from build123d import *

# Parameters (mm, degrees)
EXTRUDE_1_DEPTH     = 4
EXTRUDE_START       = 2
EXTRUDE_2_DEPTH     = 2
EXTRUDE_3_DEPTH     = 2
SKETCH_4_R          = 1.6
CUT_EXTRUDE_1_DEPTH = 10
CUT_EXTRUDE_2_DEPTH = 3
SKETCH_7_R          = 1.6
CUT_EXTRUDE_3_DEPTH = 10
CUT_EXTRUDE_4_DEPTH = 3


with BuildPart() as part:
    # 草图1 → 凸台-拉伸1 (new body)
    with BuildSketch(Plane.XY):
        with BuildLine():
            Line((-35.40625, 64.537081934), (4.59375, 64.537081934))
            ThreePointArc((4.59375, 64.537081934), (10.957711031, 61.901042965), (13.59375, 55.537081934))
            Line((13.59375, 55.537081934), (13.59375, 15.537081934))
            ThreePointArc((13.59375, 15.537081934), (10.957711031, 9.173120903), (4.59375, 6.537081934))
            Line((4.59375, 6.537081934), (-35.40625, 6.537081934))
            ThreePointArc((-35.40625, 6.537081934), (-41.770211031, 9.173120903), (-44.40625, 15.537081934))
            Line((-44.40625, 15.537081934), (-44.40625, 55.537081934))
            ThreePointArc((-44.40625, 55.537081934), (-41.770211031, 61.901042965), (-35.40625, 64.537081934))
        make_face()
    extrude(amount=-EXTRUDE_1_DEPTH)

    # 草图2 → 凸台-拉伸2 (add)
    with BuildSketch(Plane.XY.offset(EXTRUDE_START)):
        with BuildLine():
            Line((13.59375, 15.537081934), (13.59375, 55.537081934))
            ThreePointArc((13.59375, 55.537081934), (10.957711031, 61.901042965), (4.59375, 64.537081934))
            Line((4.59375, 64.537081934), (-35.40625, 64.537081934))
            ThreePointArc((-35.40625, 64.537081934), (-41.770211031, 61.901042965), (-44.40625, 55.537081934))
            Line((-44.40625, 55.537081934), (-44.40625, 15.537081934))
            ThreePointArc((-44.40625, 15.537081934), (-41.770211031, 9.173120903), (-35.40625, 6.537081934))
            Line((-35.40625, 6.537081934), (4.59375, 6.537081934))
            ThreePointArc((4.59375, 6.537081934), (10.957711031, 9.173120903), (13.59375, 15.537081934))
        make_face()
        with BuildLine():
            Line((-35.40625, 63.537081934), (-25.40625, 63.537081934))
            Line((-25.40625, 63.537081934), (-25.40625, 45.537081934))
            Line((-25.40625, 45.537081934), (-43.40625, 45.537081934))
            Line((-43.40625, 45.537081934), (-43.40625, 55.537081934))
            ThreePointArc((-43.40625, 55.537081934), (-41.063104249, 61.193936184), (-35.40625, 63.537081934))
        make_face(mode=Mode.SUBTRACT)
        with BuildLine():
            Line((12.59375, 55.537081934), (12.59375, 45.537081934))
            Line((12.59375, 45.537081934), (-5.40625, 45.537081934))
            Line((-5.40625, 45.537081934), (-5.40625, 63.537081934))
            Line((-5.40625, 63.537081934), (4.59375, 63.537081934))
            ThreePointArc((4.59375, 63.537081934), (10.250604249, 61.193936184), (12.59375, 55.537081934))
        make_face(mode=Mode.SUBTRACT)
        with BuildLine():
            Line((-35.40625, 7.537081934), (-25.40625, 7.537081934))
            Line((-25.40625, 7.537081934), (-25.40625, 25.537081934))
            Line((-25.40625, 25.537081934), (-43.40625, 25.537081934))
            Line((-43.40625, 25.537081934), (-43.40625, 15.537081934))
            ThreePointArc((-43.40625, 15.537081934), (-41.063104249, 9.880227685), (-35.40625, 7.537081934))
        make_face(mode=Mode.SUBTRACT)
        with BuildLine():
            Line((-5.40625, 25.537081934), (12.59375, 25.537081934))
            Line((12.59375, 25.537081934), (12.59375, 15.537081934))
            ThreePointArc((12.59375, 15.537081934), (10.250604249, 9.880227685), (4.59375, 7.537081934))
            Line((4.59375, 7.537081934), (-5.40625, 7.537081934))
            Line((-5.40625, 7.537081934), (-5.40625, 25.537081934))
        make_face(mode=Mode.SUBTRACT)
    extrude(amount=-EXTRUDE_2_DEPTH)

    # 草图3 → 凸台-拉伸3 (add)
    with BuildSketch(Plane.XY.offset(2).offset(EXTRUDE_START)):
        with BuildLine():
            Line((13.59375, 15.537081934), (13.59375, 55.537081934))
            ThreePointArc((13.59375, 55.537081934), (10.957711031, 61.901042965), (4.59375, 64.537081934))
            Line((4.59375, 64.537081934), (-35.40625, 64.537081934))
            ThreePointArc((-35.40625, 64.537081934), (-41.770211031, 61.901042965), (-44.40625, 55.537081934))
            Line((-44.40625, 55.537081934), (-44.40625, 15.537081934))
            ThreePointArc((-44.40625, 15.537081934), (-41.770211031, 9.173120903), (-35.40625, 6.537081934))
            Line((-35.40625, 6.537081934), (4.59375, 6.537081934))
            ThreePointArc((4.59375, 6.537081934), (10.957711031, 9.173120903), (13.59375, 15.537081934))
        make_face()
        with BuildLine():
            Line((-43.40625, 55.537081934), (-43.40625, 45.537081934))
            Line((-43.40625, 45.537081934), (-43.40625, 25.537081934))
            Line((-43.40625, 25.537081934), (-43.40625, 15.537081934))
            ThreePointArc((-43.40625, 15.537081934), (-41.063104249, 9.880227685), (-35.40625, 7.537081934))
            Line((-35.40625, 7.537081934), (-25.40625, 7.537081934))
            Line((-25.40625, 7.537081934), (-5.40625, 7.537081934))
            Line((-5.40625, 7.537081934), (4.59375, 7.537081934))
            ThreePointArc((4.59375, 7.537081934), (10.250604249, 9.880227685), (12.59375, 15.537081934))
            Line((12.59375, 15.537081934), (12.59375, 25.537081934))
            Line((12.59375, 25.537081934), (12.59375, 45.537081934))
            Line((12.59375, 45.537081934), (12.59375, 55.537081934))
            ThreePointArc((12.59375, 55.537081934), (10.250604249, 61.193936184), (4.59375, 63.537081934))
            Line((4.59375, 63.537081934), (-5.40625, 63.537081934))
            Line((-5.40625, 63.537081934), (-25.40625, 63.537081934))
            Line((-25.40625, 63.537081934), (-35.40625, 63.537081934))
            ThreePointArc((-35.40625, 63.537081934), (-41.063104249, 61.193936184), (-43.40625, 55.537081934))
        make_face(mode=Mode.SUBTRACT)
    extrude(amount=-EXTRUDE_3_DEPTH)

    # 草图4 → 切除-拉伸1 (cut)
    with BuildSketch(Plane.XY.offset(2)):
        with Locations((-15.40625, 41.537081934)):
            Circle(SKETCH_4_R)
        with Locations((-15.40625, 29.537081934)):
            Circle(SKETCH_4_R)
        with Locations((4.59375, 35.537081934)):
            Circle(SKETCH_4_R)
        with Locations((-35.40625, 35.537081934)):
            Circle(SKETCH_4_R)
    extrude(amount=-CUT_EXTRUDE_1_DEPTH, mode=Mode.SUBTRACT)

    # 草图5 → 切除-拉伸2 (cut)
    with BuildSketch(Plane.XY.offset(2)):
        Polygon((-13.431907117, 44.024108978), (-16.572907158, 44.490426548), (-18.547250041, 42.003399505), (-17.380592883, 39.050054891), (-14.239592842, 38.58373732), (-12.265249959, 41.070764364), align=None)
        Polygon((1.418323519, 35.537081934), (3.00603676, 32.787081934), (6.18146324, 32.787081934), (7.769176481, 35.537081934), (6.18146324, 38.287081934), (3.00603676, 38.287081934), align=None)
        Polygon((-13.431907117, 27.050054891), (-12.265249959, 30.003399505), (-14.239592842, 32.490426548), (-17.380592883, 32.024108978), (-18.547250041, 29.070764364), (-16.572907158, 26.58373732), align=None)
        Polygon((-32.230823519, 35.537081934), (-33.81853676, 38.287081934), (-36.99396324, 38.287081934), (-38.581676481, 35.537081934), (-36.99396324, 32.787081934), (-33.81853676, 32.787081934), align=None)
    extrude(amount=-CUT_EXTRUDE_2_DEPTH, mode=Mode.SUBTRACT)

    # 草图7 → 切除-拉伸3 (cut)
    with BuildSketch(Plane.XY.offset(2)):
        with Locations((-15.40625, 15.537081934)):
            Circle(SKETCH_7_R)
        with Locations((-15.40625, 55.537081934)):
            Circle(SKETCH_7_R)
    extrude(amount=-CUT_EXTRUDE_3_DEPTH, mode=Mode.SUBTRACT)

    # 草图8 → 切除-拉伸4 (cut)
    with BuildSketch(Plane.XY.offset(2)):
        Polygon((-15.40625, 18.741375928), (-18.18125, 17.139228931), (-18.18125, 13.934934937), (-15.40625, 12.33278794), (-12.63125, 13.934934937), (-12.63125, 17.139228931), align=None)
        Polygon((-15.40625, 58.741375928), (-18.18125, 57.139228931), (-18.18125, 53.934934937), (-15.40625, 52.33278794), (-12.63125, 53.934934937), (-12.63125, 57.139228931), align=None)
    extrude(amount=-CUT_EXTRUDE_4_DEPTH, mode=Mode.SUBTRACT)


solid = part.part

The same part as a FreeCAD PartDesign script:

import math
import FreeCAD as App
import Part
import Sketcher
from FreeCAD import Vector
Q = App.Units.Quantity


def add_polygon(sketch, points):
    """Adds a closed chain of lines whose ends are joined by coincident constraints."""
    first, n = sketch.GeometryCount, len(points)
    for a, b in zip(points, points[1:] + points[:1]):
        sketch.addGeometry(Part.LineSegment(App.Vector(*a, 0), App.Vector(*b, 0)), False)
    for i in range(n):
        sketch.addConstraint(Sketcher.Constraint("Coincident", first + i, 2, first + (i + 1) % n, 1))

doc = App.newDocument("Part")
params = doc.addObject("Spreadsheet::Sheet", "Params")
for row, (alias, value) in enumerate([
    ("sketch1_radius", "9 mm"),
    ("sketch1_width", "40 mm"),
    ("pad1_length", "4 mm"),
    ("sketch2_radius", "9 mm"),
    ("sketch2_radius2", "8 mm"),
    ("sketch2_width", "40 mm"),
    ("sketch2_width2", "10 mm"),
    ("pad2_length", "2 mm"),
    ("sketch3_radius", "9 mm"),
    ("sketch3_radius2", "8 mm"),
    ("sketch3_width", "40 mm"),
    ("pad3_length", "2 mm"),
    ("sketch4_diameter", "3.2 mm"),
    ("pocket1_length", "10 mm"),
    ("pocket2_length", "3 mm"),
    ("sketch6_diameter", "3.2 mm"),
    ("pocket3_length", "10 mm"),
    ("pocket4_length", "3 mm"),
], start=1):
    params.set(f"A{row}", alias)
    params.set(f"B{row}", "=" + value)
    params.setAlias(f"B{row}", alias)

body = doc.addObject("PartDesign::Body", "Body")

# Sketch on XY plane
sketch1 = body.newObject("Sketcher::SketchObject", "Sketch")
sketch1.AttachmentSupport = (doc.getObject("XY_Plane"), [""])
sketch1.MapMode = "FlatFace"
sketch1.addGeometry([
    Part.LineSegment(Vector(5, 65, 0), Vector(-35, 65, 0)),  # 0
    Part.ArcOfCircle(Part.Circle(Vector(-35, 56, 0), Vector(0, 0, 1), 9), math.radians(90), math.radians(180)),  # 1
    Part.LineSegment(Vector(-44, 56, 0), Vector(-44, 16, 0)),  # 2
    Part.ArcOfCircle(Part.Circle(Vector(-35, 16, 0), Vector(0, 0, 1), 9), math.radians(180), math.radians(270)),  # 3
    Part.LineSegment(Vector(-35, 7, 0), Vector(5, 7, 0)),  # 4
    Part.ArcOfCircle(Part.Circle(Vector(5, 16, 0), Vector(0, 0, 1), 9), math.radians(-90), math.radians(0)),  # 5
    Part.LineSegment(Vector(14, 16, 0), Vector(14, 56, 0)),  # 6
    Part.ArcOfCircle(Part.Circle(Vector(5, 56, 0), Vector(0, 0, 1), 9), math.radians(0), math.radians(90)),  # 7
], False)
sketch1.addConstraint([
    Sketcher.Constraint("Tangent", 0, 2, 1, 1),
    Sketcher.Constraint("Tangent", 1, 2, 2, 1),
    Sketcher.Constraint("Tangent", 2, 2, 3, 1),
    Sketcher.Constraint("Tangent", 3, 2, 4, 1),
    Sketcher.Constraint("Tangent", 4, 2, 5, 1),
    Sketcher.Constraint("Tangent", 5, 2, 6, 1),
    Sketcher.Constraint("Tangent", 6, 2, 7, 1),
    Sketcher.Constraint("Tangent", 7, 2, 0, 1),
    Sketcher.Constraint("Horizontal", 0),
    Sketcher.Constraint("Vertical", 2),
    Sketcher.Constraint("Horizontal", 4),
    Sketcher.Constraint("Vertical", 6),
    Sketcher.Constraint("Equal", 1, 3),
    Sketcher.Constraint("Equal", 3, 5),
    Sketcher.Constraint("Equal", 5, 7),
    Sketcher.Constraint("Equal", 4, 2),
    Sketcher.Constraint("Radius", 1, 9.0),
    Sketcher.Constraint("DistanceX", 0, 2, 0, 1, 40.0),
    Sketcher.Constraint("DistanceX", 1, 3, -1, 1, 35.40625),
    Sketcher.Constraint("DistanceY", -1, 1, 1, 3, 55.537082),
])
sketch1.setExpression("Constraints[16]", "Params.sketch1_radius")
sketch1.setExpression("Constraints[17]", "Params.sketch1_width")
pad1 = body.newObject("PartDesign::Pad", "Pad")
pad1.Profile = sketch1
pad1.setExpression("Length", "Params.pad1_length")
pad1.Reversed = True

# Sketch on XY plane
sketch2 = body.newObject("Sketcher::SketchObject", "Sketch001")
sketch2.AttachmentSupport = (doc.getObject("XY_Plane"), [""])
sketch2.MapMode = "FlatFace"
sketch2.AttachmentOffset = App.Placement(Vector(0, 0, 2), App.Rotation())
sketch2.addGeometry([
    Part.LineSegment(Vector(14, 16, 0), Vector(14, 56, 0)),  # 0
    Part.ArcOfCircle(Part.Circle(Vector(5, 56, 0), Vector(0, 0, 1), 9), math.radians(0), math.radians(90)),  # 1
    Part.LineSegment(Vector(5, 65, 0), Vector(-35, 65, 0)),  # 2
    Part.ArcOfCircle(Part.Circle(Vector(-35, 56, 0), Vector(0, 0, 1), 9), math.radians(90), math.radians(180)),  # 3
    Part.LineSegment(Vector(-44, 56, 0), Vector(-44, 16, 0)),  # 4
    Part.ArcOfCircle(Part.Circle(Vector(-35, 16, 0), Vector(0, 0, 1), 9), math.radians(180), math.radians(270)),  # 5
    Part.LineSegment(Vector(-35, 7, 0), Vector(5, 7, 0)),  # 6
    Part.ArcOfCircle(Part.Circle(Vector(5, 16, 0), Vector(0, 0, 1), 9), math.radians(-90), math.radians(0)),  # 7
    Part.LineSegment(Vector(-25, 8, 0), Vector(-35, 8, 0)),  # 8
    Part.ArcOfCircle(Part.Circle(Vector(-35, 16, 0), Vector(0, 0, 1), 8), math.radians(-180), math.radians(-90)),  # 9
    Part.LineSegment(Vector(-43, 16, 0), Vector(-43, 26, 0)),  # 10
    Part.LineSegment(Vector(-43, 26, 0), Vector(-25, 26, 0)),  # 11
    Part.LineSegment(Vector(-25, 26, 0), Vector(-25, 8, 0)),  # 12
    Part.LineSegment(Vector(-5, 8, 0), Vector(-5, 26, 0)),  # 13
    Part.LineSegment(Vector(-5, 26, 0), Vector(13, 26, 0)),  # 14
    Part.LineSegment(Vector(13, 26, 0), Vector(13, 16, 0)),  # 15
    Part.ArcOfCircle(Part.Circle(Vector(5, 16, 0), Vector(0, 0, 1), 8), math.radians(-90), math.radians(0)),  # 16
    Part.LineSegment(Vector(5, 8, 0), Vector(-5, 8, 0)),  # 17
    Part.ArcOfCircle(Part.Circle(Vector(-35, 56, 0), Vector(0, 0, 1), 8), math.radians(90), math.radians(180)),  # 18
    Part.LineSegment(Vector(-35, 64, 0), Vector(-25, 64, 0)),  # 19
    Part.LineSegment(Vector(-25, 64, 0), Vector(-25, 46, 0)),  # 20
    Part.LineSegment(Vector(-25, 46, 0), Vector(-43, 46, 0)),  # 21
    Part.LineSegment(Vector(-43, 46, 0), Vector(-43, 56, 0)),  # 22
    Part.ArcOfCircle(Part.Circle(Vector(5, 56, 0), Vector(0, 0, 1), 8), math.radians(0), math.radians(90)),  # 23
    Part.LineSegment(Vector(13, 56, 0), Vector(13, 46, 0)),  # 24
    Part.LineSegment(Vector(13, 46, 0), Vector(-5, 46, 0)),  # 25
    Part.LineSegment(Vector(-5, 46, 0), Vector(-5, 64, 0)),  # 26
    Part.LineSegment(Vector(-5, 64, 0), Vector(5, 64, 0)),  # 27
], False)
sketch2.addConstraint([
    Sketcher.Constraint("Tangent", 0, 2, 1, 1),
    Sketcher.Constraint("Tangent", 1, 2, 2, 1),
    Sketcher.Constraint("Tangent", 2, 2, 3, 1),
    Sketcher.Constraint("Tangent", 3, 2, 4, 1),
    Sketcher.Constraint("Tangent", 4, 2, 5, 1),
    Sketcher.Constraint("Tangent", 5, 2, 6, 1),
    Sketcher.Constraint("Tangent", 6, 2, 7, 1),
    Sketcher.Constraint("Tangent", 7, 2, 0, 1),
    Sketcher.Constraint("Tangent", 8, 2, 9, 2),
    Sketcher.Constraint("Tangent", 9, 1, 10, 1),
    Sketcher.Constraint("Coincident", 10, 2, 11, 1),
    Sketcher.Constraint("Coincident", 11, 2, 12, 1),
    Sketcher.Constraint("Coincident", 12, 2, 8, 1),
    Sketcher.Constraint("Coincident", 13, 2, 14, 1),
    Sketcher.Constraint("Coincident", 14, 2, 15, 1),
    Sketcher.Constraint("Tangent", 15, 2, 16, 2),
    Sketcher.Constraint("Tangent", 16, 1, 17, 1),
    Sketcher.Constraint("Coincident", 17, 2, 13, 1),
    Sketcher.Constraint("Tangent", 18, 1, 19, 1),
    Sketcher.Constraint("Coincident", 19, 2, 20, 1),
    Sketcher.Constraint("Coincident", 20, 2, 21, 1),
    Sketcher.Constraint("Coincident", 21, 2, 22, 1),
    Sketcher.Constraint("Tangent", 22, 2, 18, 2),
    Sketcher.Constraint("Tangent", 23, 1, 24, 1),
    Sketcher.Constraint("Coincident", 24, 2, 25, 1),
    Sketcher.Constraint("Coincident", 25, 2, 26, 1),
    Sketcher.Constraint("Coincident", 26, 2, 27, 1),
    Sketcher.Constraint("Tangent", 27, 2, 23, 2),
    Sketcher.Constraint("Vertical", 0),
    Sketcher.Constraint("Horizontal", 2),
    Sketcher.Constraint("Vertical", 4),
    Sketcher.Constraint("Horizontal", 6),
    Sketcher.Constraint("Horizontal", 8),
    Sketcher.Constraint("Vertical", 10),
    Sketcher.Constraint("Horizontal", 11),
    Sketcher.Constraint("Vertical", 12),
    Sketcher.Constraint("Vertical", 13),
    Sketcher.Constraint("Horizontal", 14),
    Sketcher.Constraint("Vertical", 15),
    Sketcher.Constraint("Horizontal", 17),
    Sketcher.Constraint("Horizontal", 19),
    Sketcher.Constraint("Vertical", 20),
    Sketcher.Constraint("Horizontal", 21),
    Sketcher.Constraint("Vertical", 22),
    Sketcher.Constraint("Vertical", 24),
    Sketcher.Constraint("Horizontal", 25),
    Sketcher.Constraint("Vertical", 26),
    Sketcher.Constraint("Horizontal", 27),
    Sketcher.Constraint("Coincident", 9, 3, 5, 3),
    Sketcher.Constraint("Coincident", 16, 3, 7, 3),
    Sketcher.Constraint("Coincident", 18, 3, 3, 3),
    Sketcher.Constraint("Coincident", 23, 3, 1, 3),
    Sketcher.Constraint("Equal", 1, 3),
    Sketcher.Constraint("Equal", 3, 5),
    Sketcher.Constraint("Equal", 5, 7),
    Sketcher.Constraint("Equal", 9, 16),
    Sketcher.Constraint("Equal", 16, 18),
    Sketcher.Constraint("Equal", 18, 23),
    Sketcher.Constraint("Horizontal", 11, 2, 13, 2),
    Sketcher.Constraint("Horizontal", 21, 2, 24, 2),
    Sketcher.Constraint("Vertical", 12, 2, 19, 2),
    Sketcher.Constraint("Vertical", 17, 2, 25, 2),
    Sketcher.Constraint("Equal", 11, 14),
    Sketcher.Constraint("Equal", 6, 0),
    Sketcher.Constraint("Equal", 27, 10),
    Sketcher.Constraint("Equal", 13, 20),
    Sketcher.Constraint("Radius", 1, 9.0),
    Sketcher.Constraint("Radius", 9, 8.0),
    Sketcher.Constraint("DistanceX", 2, 2, 2, 1, 40.0),
    Sketcher.Constraint("DistanceX", 8, 2, 8, 1, 10.0),
    Sketcher.Constraint("DistanceX", -1, 1, 1, 3, 4.59375),
    Sketcher.Constraint("DistanceY", -1, 1, 1, 3, 55.537082),
])
sketch2.setExpression("Constraints[66]", "Params.sketch2_radius")
sketch2.setExpression("Constraints[67]", "Params.sketch2_radius2")
sketch2.setExpression("Constraints[68]", "Params.sketch2_width")
sketch2.setExpression("Constraints[69]", "Params.sketch2_width2")
pad2 = body.newObject("PartDesign::Pad", "Pad001")
pad2.Profile = sketch2
pad2.setExpression("Length", "Params.pad2_length")
pad2.Reversed = True

# Sketch on XY plane
sketch3 = body.newObject("Sketcher::SketchObject", "Sketch002")
sketch3.AttachmentSupport = (doc.getObject("XY_Plane"), [""])
sketch3.MapMode = "FlatFace"
sketch3.AttachmentOffset = App.Placement(Vector(0, 0, 4), App.Rotation())
sketch3.addGeometry([
    Part.LineSegment(Vector(14, 16, 0), Vector(14, 56, 0)),  # 0
    Part.ArcOfCircle(Part.Circle(Vector(5, 56, 0), Vector(0, 0, 1), 9), math.radians(0), math.radians(90)),  # 1
    Part.LineSegment(Vector(5, 65, 0), Vector(-35, 65, 0)),  # 2
    Part.ArcOfCircle(Part.Circle(Vector(-35, 56, 0), Vector(0, 0, 1), 9), math.radians(90), math.radians(180)),  # 3
    Part.LineSegment(Vector(-44, 56, 0), Vector(-44, 16, 0)),  # 4
    Part.ArcOfCircle(Part.Circle(Vector(-35, 16, 0), Vector(0, 0, 1), 9), math.radians(180), math.radians(270)),  # 5
    Part.LineSegment(Vector(-35, 7, 0), Vector(5, 7, 0)),  # 6
    Part.ArcOfCircle(Part.Circle(Vector(5, 16, 0), Vector(0, 0, 1), 9), math.radians(-90), math.radians(0)),  # 7
    Part.LineSegment(Vector(-43, 16, 0), Vector(-43, 56, 0)),  # 8
    Part.ArcOfCircle(Part.Circle(Vector(-35, 56, 0), Vector(0, 0, 1), 8), math.radians(90), math.radians(180)),  # 9
    Part.LineSegment(Vector(-35, 64, 0), Vector(5, 64, 0)),  # 10
    Part.ArcOfCircle(Part.Circle(Vector(5, 56, 0), Vector(0, 0, 1), 8), math.radians(0), math.radians(90)),  # 11
    Part.LineSegment(Vector(13, 56, 0), Vector(13, 16, 0)),  # 12
    Part.ArcOfCircle(Part.Circle(Vector(5, 16, 0), Vector(0, 0, 1), 8), math.radians(-90), math.radians(0)),  # 13
    Part.LineSegment(Vector(5, 8, 0), Vector(-35, 8, 0)),  # 14
    Part.ArcOfCircle(Part.Circle(Vector(-35, 16, 0), Vector(0, 0, 1), 8), math.radians(-180), math.radians(-90)),  # 15
], False)
sketch3.addConstraint([
    Sketcher.Constraint("Tangent", 0, 2, 1, 1),
    Sketcher.Constraint("Tangent", 1, 2, 2, 1),
    Sketcher.Constraint("Tangent", 2, 2, 3, 1),
    Sketcher.Constraint("Tangent", 3, 2, 4, 1),
    Sketcher.Constraint("Tangent", 4, 2, 5, 1),
    Sketcher.Constraint("Tangent", 5, 2, 6, 1),
    Sketcher.Constraint("Tangent", 6, 2, 7, 1),
    Sketcher.Constraint("Tangent", 7, 2, 0, 1),
    Sketcher.Constraint("Tangent", 8, 2, 9, 2),
    Sketcher.Constraint("Tangent", 9, 1, 10, 1),
    Sketcher.Constraint("Tangent", 10, 2, 11, 2),
    Sketcher.Constraint("Tangent", 11, 1, 12, 1),
    Sketcher.Constraint("Tangent", 12, 2, 13, 2),
    Sketcher.Constraint("Tangent", 13, 1, 14, 1),
    Sketcher.Constraint("Tangent", 14, 2, 15, 2),
    Sketcher.Constraint("Tangent", 15, 1, 8, 1),
    Sketcher.Constraint("Vertical", 0),
    Sketcher.Constraint("Horizontal", 2),
    Sketcher.Constraint("Vertical", 4),
    Sketcher.Constraint("Horizontal", 6),
    Sketcher.Constraint("Vertical", 8),
    Sketcher.Constraint("Horizontal", 10),
    Sketcher.Constraint("Vertical", 12),
    Sketcher.Constraint("Horizontal", 14),
    Sketcher.Constraint("Coincident", 9, 3, 3, 3),
    Sketcher.Constraint("Coincident", 11, 3, 1, 3),
    Sketcher.Constraint("Coincident", 13, 3, 7, 3),
    Sketcher.Constraint("Equal", 1, 3),
    Sketcher.Constraint("Equal", 3, 5),
    Sketcher.Constraint("Equal", 5, 7),
    Sketcher.Constraint("Equal", 13, 15),
    Sketcher.Constraint("Equal", 14, 0),
    Sketcher.Constraint("Radius", 1, 9.0),
    Sketcher.Constraint("Radius", 9, 8.0),
    Sketcher.Constraint("DistanceX", 2, 2, 2, 1, 40.0),
    Sketcher.Constraint("DistanceX", -1, 1, 1, 3, 4.59375),
    Sketcher.Constraint("DistanceY", -1, 1, 1, 3, 55.537082),
])
sketch3.setExpression("Constraints[32]", "Params.sketch3_radius")
sketch3.setExpression("Constraints[33]", "Params.sketch3_radius2")
sketch3.setExpression("Constraints[34]", "Params.sketch3_width")
pad3 = body.newObject("PartDesign::Pad", "Pad002")
pad3.Profile = sketch3
pad3.setExpression("Length", "Params.pad3_length")
pad3.Reversed = True

# Sketch on XY plane
sketch4 = body.newObject("Sketcher::SketchObject", "Sketch003")
sketch4.AttachmentSupport = (doc.getObject("XY_Plane"), [""])
sketch4.MapMode = "FlatFace"
sketch4.AttachmentOffset = App.Placement(Vector(0, 0, 2), App.Rotation())
sketch4.addGeometry([
    Part.Circle(Vector(-15.4, 41.5, 0), Vector(0, 0, 1), 1.6),
    Part.Circle(Vector(-15.4, 29.5, 0), Vector(0, 0, 1), 1.6),
    Part.Circle(Vector(4.6, 35.5, 0), Vector(0, 0, 1), 1.6),
    Part.Circle(Vector(-35.4, 35.5, 0), Vector(0, 0, 1), 1.6),
], False)
sketch4.addConstraint([
    Sketcher.Constraint("Equal", 0, 1),
    Sketcher.Constraint("Equal", 1, 2),
    Sketcher.Constraint("Equal", 2, 3),
    Sketcher.Constraint("Horizontal", 2, 3, 3, 3),
    Sketcher.Constraint("Vertical", 0, 3, 1, 3),
    Sketcher.Constraint("Diameter", 0, 3.2),
    Sketcher.Constraint("DistanceY", 1, 3, 0, 3, 12.0),
    Sketcher.Constraint("DistanceX", 0, 3, 2, 3, 20.0),
    Sketcher.Constraint("DistanceY", 2, 3, 0, 3, 6.0),
    Sketcher.Constraint("DistanceX", 3, 3, 0, 3, 20.0),
    Sketcher.Constraint("DistanceX", 0, 3, -1, 1, 15.40625),
    Sketcher.Constraint("DistanceY", -1, 1, 0, 3, 41.537082),
])
sketch4.setExpression("Constraints[5]", "Params.sketch4_diameter")
pocket1 = body.newObject("PartDesign::Pocket", "Pocket")
pocket1.Profile = sketch4
pocket1.setExpression("Length", "Params.pocket1_length")

# Sketch on XY plane
sketch5 = body.newObject("Sketcher::SketchObject", "Sketch004")
sketch5.AttachmentSupport = (doc.getObject("XY_Plane"), [""])
sketch5.MapMode = "FlatFace"
sketch5.AttachmentOffset = App.Placement(Vector(0, 0, 2), App.Rotation())
add_polygon(sketch5, [(-13.4, 44), (-16.6, 44.5), (-18.5, 42), (-17.4, 39.1), (-14.2, 38.6), (-12.3, 41.1)])  # lines 0-5
add_polygon(sketch5, [(1.4, 35.5), (3, 32.8), (6.2, 32.8), (7.8, 35.5), (6.2, 38.3), (3, 38.3)])  # lines 6-11
add_polygon(sketch5, [(-13.4, 27.1), (-12.3, 30), (-14.2, 32.5), (-17.4, 32), (-18.5, 29.1), (-16.6, 26.6)])  # lines 12-17
add_polygon(sketch5, [(-32.2, 35.5), (-33.8, 38.3), (-37, 38.3), (-38.6, 35.5), (-37, 32.8), (-33.8, 32.8)])  # lines 18-23
sketch5.addConstraint([
    Sketcher.Constraint("Horizontal", 7),
    Sketcher.Constraint("Horizontal", 10),
    Sketcher.Constraint("Horizontal", 19),
    Sketcher.Constraint("Horizontal", 22),
    Sketcher.Constraint("Parallel", 0, 3),
    Sketcher.Constraint("Parallel", 1, 4),
    Sketcher.Constraint("Parallel", 2, 5),
    Sketcher.Constraint("Parallel", 6, 9),
    Sketcher.Constraint("Parallel", 8, 11),
    Sketcher.Constraint("Parallel", 12, 15),
    Sketcher.Constraint("Parallel", 13, 16),
    Sketcher.Constraint("Parallel", 14, 17),
    Sketcher.Constraint("Parallel", 9, 18),
    Sketcher.Constraint("Parallel", 11, 20),
    Sketcher.Constraint("Parallel", 18, 21),
    Sketcher.Constraint("Parallel", 20, 23),
    Sketcher.Constraint("Horizontal", 8, 2, 11, 2),
    Sketcher.Constraint("Horizontal", 10, 2, 18, 2),
    Sketcher.Constraint("Horizontal", 11, 2, 20, 2),
    Sketcher.Constraint("Horizontal", 7, 2, 21, 2),
    Sketcher.Constraint("Horizontal", 20, 2, 23, 2),
    Sketcher.Constraint("Vertical", 7, 2, 9, 2),
    Sketcher.Constraint("Vertical", 6, 2, 10, 2),
    Sketcher.Constraint("Vertical", 4, 2, 12, 2),
    Sketcher.Constraint("Vertical", 3, 2, 13, 2),
    Sketcher.Constraint("Vertical", 2, 2, 14, 2),
    Sketcher.Constraint("Vertical", 1, 2, 15, 2),
    Sketcher.Constraint("Vertical", 0, 2, 16, 2),
    Sketcher.Constraint("Equal", 10, 19),
    Sketcher.Constraint("Equal", 0, 1),
    Sketcher.Constraint("Equal", 1, 2),
    Sketcher.Constraint("Equal", 2, 3),
    Sketcher.Constraint("Equal", 5, 6),
    Sketcher.Constraint("Equal", 11, 12),
    Sketcher.Constraint("Equal", 12, 13),
    Sketcher.Constraint("Equal", 13, 14),
    Sketcher.Constraint("Angle", 6, Q("-60 deg")),
    Sketcher.Constraint("DistanceY", 12, 2, 1, 2, 12.0),
    Sketcher.Constraint("DistanceY", 7, 2, 9, 2, 5.5),
    Sketcher.Constraint("DistanceX", 2, 2, 3, 2, 3.141),
    Sketcher.Constraint("DistanceX", 1, 2, 4, 2, 6.282),
    Sketcher.Constraint("DistanceY", -1, 1, 1, 2, 42.0034),
    Sketcher.Constraint("DistanceX", 7, 1, 7, 2, 3.175426),
    Sketcher.Constraint("DistanceX", 1, 2, -1, 1, 18.54725),
    Sketcher.Constraint("DistanceY", -1, 1, 5, 2, 44.024109),
    Sketcher.Constraint("DistanceY", -1, 1, 6, 2, 32.787082),
    Sketcher.Constraint("DistanceX", 3, 2, 6, 2, 17.24563),
    Sketcher.Constraint("DistanceX", 18, 2, 0, 2, 17.24563),
])
pocket2 = body.newObject("PartDesign::Pocket", "Pocket001")
pocket2.Profile = sketch5
pocket2.setExpression("Length", "Params.pocket2_length")

# Sketch on XY plane
sketch6 = body.newObject("Sketcher::SketchObject", "Sketch005")
sketch6.AttachmentSupport = (doc.getObject("XY_Plane"), [""])
sketch6.MapMode = "FlatFace"
sketch6.AttachmentOffset = App.Placement(Vector(0, 0, 2), App.Rotation())
sketch6.addGeometry([
    Part.Circle(Vector(-15.4, 15.5, 0), Vector(0, 0, 1), 1.6),
    Part.Circle(Vector(-15.4, 55.5, 0), Vector(0, 0, 1), 1.6),
], False)
sketch6.addConstraint([
    Sketcher.Constraint("Equal", 0, 1),
    Sketcher.Constraint("Vertical", 0, 3, 1, 3),
    Sketcher.Constraint("Diameter", 0, 3.2),
    Sketcher.Constraint("DistanceY", 0, 3, 1, 3, 40.0),
    Sketcher.Constraint("DistanceX", 0, 3, -1, 1, 15.40625),
    Sketcher.Constraint("DistanceY", -1, 1, 0, 3, 15.537082),
])
sketch6.setExpression("Constraints[2]", "Params.sketch6_diameter")
pocket3 = body.newObject("PartDesign::Pocket", "Pocket002")
pocket3.Profile = sketch6
pocket3.setExpression("Length", "Params.pocket3_length")

# Sketch on XY plane
sketch7 = body.newObject("Sketcher::SketchObject", "Sketch006")
sketch7.AttachmentSupport = (doc.getObject("XY_Plane"), [""])
sketch7.MapMode = "FlatFace"
sketch7.AttachmentOffset = App.Placement(Vector(0, 0, 2), App.Rotation())
add_polygon(sketch7, [(-15.4, 18.7), (-18.2, 17.1), (-18.2, 13.9), (-15.4, 12.3), (-12.6, 13.9), (-12.6, 17.1)])  # lines 0-5
add_polygon(sketch7, [(-15.4, 58.7), (-18.2, 57.1), (-18.2, 53.9), (-15.4, 52.3), (-12.6, 53.9), (-12.6, 57.1)])  # lines 6-11
sketch7.addConstraint([
    Sketcher.Constraint("Vertical", 1),
    Sketcher.Constraint("Vertical", 4),
    Sketcher.Constraint("Vertical", 7),
    Sketcher.Constraint("Vertical", 10),
    Sketcher.Constraint("Parallel", 0, 3),
    Sketcher.Constraint("Parallel", 2, 5),
    Sketcher.Constraint("Parallel", 3, 6),
    Sketcher.Constraint("Parallel", 5, 8),
    Sketcher.Constraint("Parallel", 6, 9),
    Sketcher.Constraint("Parallel", 8, 11),
    Sketcher.Constraint("Horizontal", 1, 2, 3, 2),
    Sketcher.Constraint("Horizontal", 0, 2, 4, 2),
    Sketcher.Constraint("Horizontal", 7, 2, 9, 2),
    Sketcher.Constraint("Horizontal", 6, 2, 10, 2),
    Sketcher.Constraint("Vertical", 2, 2, 5, 2),
    Sketcher.Constraint("Vertical", 1, 2, 6, 2),
    Sketcher.Constraint("Vertical", 5, 2, 8, 2),
    Sketcher.Constraint("Equal", 4, 7),
    Sketcher.Constraint("Angle", 0, Q("-150 deg")),
    Sketcher.Constraint("DistanceY", 0, 2, 6, 2, 40.0),
    Sketcher.Constraint("DistanceX", 1, 2, 3, 2, 5.55),
    Sketcher.Constraint("DistanceY", 1, 2, 1, 1, 3.204294),
    Sketcher.Constraint("DistanceX", 0, 2, -1, 1, 18.18125),
    Sketcher.Constraint("DistanceY", -1, 1, 0, 2, 17.139229),
])
pocket4 = body.newObject("PartDesign::Pocket", "Pocket003")
pocket4.Profile = sketch7
pocket4.setExpression("Length", "Params.pocket4_length")

doc.recompute()
